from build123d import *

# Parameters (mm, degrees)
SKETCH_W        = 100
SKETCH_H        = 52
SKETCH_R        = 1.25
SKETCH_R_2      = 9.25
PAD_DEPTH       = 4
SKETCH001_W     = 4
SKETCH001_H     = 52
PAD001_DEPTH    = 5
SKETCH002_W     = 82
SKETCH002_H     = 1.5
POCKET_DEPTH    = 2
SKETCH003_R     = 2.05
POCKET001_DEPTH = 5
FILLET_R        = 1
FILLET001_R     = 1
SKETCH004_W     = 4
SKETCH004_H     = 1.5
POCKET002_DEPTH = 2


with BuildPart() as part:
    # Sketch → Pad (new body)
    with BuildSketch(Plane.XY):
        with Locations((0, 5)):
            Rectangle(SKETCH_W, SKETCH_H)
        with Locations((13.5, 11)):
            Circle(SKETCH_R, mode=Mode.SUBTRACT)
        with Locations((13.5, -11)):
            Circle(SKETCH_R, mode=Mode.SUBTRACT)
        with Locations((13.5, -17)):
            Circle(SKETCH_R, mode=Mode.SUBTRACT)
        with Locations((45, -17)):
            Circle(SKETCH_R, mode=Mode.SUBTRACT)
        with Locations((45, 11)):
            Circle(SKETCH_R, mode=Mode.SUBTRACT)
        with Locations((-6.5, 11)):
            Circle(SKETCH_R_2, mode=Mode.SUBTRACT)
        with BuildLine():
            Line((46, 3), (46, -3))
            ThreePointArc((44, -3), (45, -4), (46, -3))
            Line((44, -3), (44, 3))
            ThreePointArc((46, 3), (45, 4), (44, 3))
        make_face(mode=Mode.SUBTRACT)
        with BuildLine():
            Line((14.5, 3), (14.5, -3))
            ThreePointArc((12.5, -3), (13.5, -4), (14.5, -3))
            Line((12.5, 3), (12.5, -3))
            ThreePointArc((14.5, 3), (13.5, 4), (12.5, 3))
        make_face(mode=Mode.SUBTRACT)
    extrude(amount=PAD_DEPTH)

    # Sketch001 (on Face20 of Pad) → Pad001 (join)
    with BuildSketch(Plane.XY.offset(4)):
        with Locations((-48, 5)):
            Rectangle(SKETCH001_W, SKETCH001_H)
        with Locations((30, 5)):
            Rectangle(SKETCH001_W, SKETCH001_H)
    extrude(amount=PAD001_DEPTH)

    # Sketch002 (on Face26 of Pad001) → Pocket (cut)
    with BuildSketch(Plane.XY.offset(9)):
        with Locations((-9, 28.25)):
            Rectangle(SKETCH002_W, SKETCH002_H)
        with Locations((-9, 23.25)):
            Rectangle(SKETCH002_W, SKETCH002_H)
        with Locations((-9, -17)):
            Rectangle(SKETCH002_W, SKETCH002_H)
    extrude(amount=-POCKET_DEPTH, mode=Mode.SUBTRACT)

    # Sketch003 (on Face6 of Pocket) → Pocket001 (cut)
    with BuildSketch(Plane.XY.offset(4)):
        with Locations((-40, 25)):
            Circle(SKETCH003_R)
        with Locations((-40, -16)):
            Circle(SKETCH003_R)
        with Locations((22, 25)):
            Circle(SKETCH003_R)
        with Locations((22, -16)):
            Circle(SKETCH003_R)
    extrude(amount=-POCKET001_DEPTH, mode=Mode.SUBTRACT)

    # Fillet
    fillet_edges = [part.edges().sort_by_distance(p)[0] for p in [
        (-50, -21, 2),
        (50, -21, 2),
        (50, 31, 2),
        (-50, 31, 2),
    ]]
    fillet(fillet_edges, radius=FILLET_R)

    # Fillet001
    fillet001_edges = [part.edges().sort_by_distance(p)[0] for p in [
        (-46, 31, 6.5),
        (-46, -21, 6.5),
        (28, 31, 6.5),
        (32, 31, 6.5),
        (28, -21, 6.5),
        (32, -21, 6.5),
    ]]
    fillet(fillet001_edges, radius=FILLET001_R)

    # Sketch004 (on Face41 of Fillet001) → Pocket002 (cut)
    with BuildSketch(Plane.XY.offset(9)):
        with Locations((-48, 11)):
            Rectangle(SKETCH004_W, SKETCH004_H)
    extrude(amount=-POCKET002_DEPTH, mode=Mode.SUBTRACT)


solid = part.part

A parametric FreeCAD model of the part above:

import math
import FreeCAD as App
import Part
import Sketcher

V = App.Vector


def edges_at(feature, points):
    """Names of the edges that pass closest to the given points."""
    edges = feature.Shape.Edges
    near = lambda p: min(range(len(edges)), key=lambda i: edges[i].distToShape(Part.Vertex(*p))[0])
    return sorted({f"Edge{near(p) + 1}" for p in points})

doc = App.newDocument("Part")
params = doc.addObject("Spreadsheet::Sheet", "Params")
for row, (alias, value) in enumerate([
    ("sketch1_radius", "1 mm"),
    ("sketch1_diameter", "2.5 mm"),
    ("sketch1_diameter2", "18.5 mm"),
    ("sketch1_width", "100 mm"),
    ("sketch1_height", "52 mm"),
    ("pad1_length", "4 mm"),
    ("sketch2_width", "4 mm"),
    ("sketch2_height", "52 mm"),
    ("pad2_length", "5 mm"),
    ("sketch3_width", "82 mm"),
    ("sketch3_height", "1.5 mm"),
    ("pocket1_length", "2 mm"),
    ("sketch4_diameter", "4.1 mm"),
    ("pocket2_length", "5 mm"),
    ("fillet_radius", "1 mm"),
    ("fillet2_radius", "1 mm"),
    ("sketch5_width", "4 mm"),
    ("sketch5_height", "1.5 mm"),
    ("pocket3_length", "2 mm"),
], start=1):
    params.set(f"A{row}", alias)
    params.set(f"B{row}", "=" + value)
    params.setAlias(f"B{row}", alias)

body = doc.addObject("PartDesign::Body", "Body")

# Sketch on XY plane
sketch1 = body.newObject("Sketcher::SketchObject", "Sketch")
sketch1.AttachmentSupport = (doc.getObject("XY_Plane"), [""])
sketch1.MapMode = "FlatFace"
sketch1.addGeometry(Part.LineSegment(V(-50, 31, 0), V(-50, -21, 0)), False)
sketch1.addGeometry(Part.LineSegment(V(-50, -21, 0), V(50, -21, 0)), False)
sketch1.addGeometry(Part.LineSegment(V(50, -21, 0), V(50, 31, 0)), False)
sketch1.addGeometry(Part.LineSegment(V(50, 31, 0), V(-50, 31, 0)), False)
sketch1.addGeometry(Part.Circle(V(13.5, -17, 0), V(0, 0, 1), 1.2), False)
sketch1.addGeometry(Part.Circle(V(13.5, -11, 0), V(0, 0, 1), 1.2), False)
sketch1.addGeometry(Part.ArcOfCircle(Part.Circle(V(13.5, 3, 0), V(0, 0, 1), 1), math.radians(0), math.radians(180)), False)
sketch1.addGeometry(Part.LineSegment(V(14.5, 3, 0), V(14.5, -3, 0)), False)
sketch1.addGeometry(Part.ArcOfCircle(Part.Circle(V(13.5, -3, 0), V(0, 0, 1), 1), math.radians(180), math.radians(360)), False)
sketch1.addGeometry(Part.LineSegment(V(12.5, -3, 0), V(12.5, 3, 0)), False)
sketch1.addGeometry(Part.Circle(V(45, -17, 0), V(0, 0, 1), 1.2), False)
sketch1.addGeometry(Part.ArcOfCircle(Part.Circle(V(45, 3, 0), V(0, 0, 1), 1), math.radians(0), math.radians(180)), False)
sketch1.addGeometry(Part.LineSegment(V(46, 3, 0), V(46, -3, 0)), False)
sketch1.addGeometry(Part.ArcOfCircle(Part.Circle(V(45, -3, 0), V(0, 0, 1), 1), math.radians(180), math.radians(360)), False)
sketch1.addGeometry(Part.LineSegment(V(44, -3, 0), V(44, 3, 0)), False)
sketch1.addGeometry(Part.Circle(V(-6.5, 11, 0), V(0, 0, 1), 9.2), False)
sketch1.addGeometry(Part.Circle(V(13.5, 11, 0), V(0, 0, 1), 1.2), False)
sketch1.addGeometry(Part.Circle(V(45, 11, 0), V(0, 0, 1), 1.2), False)
sketch1.addConstraint(Sketcher.Constraint("Coincident", 0, 2, 1, 1))
sketch1.addConstraint(Sketcher.Constraint("Coincident", 1, 2, 2, 1))
sketch1.addConstraint(Sketcher.Constraint("Coincident", 2, 2, 3, 1))
sketch1.addConstraint(Sketcher.Constraint("Coincident", 3, 2, 0, 1))
sketch1.addConstraint(Sketcher.Constraint("Tangent", 6, 1, 7, 1))
sketch1.addConstraint(Sketcher.Constraint("Tangent", 7, 2, 8, 2))
sketch1.addConstraint(Sketcher.Constraint("Tangent", 8, 1, 9, 1))
sketch1.addConstraint(Sketcher.Constraint("Tangent", 9, 2, 6, 2))
sketch1.addConstraint(Sketcher.Constraint("Tangent", 11, 1, 12, 1))
sketch1.addConstraint(Sketcher.Constraint("Tangent", 12, 2, 13, 2))
sketch1.addConstraint(Sketcher.Constraint("Tangent", 13, 1, 14, 1))
sketch1.addConstraint(Sketcher.Constraint("Tangent", 14, 2, 11, 2))
sketch1.addConstraint(Sketcher.Constraint("Vertical", 0))
sketch1.addConstraint(Sketcher.Constraint("Horizontal", 1))
sketch1.addConstraint(Sketcher.Constraint("Vertical", 2))
sketch1.addConstraint(Sketcher.Constraint("Horizontal", 3))
sketch1.addConstraint(Sketcher.Constraint("Vertical", 7))
sketch1.addConstraint(Sketcher.Constraint("Vertical", 9))
sketch1.addConstraint(Sketcher.Constraint("Vertical", 12))
sketch1.addConstraint(Sketcher.Constraint("Vertical", 14))
sketch1.addConstraint(Sketcher.Constraint("Equal", 4, 5))
sketch1.addConstraint(Sketcher.Constraint("Equal", 5, 10))
sketch1.addConstraint(Sketcher.Constraint("Equal", 8, 11))
sketch1.addConstraint(Sketcher.Constraint("Equal", 10, 16))
sketch1.addConstraint(Sketcher.Constraint("Equal", 16, 17))
sketch1.addConstraint(Sketcher.Constraint("Symmetric", 5, 3, 16, 3, -1))
sketch1.addConstraint(Sketcher.Constraint("Horizontal", 4, 3, 10, 3))
sketch1.addConstraint(Sketcher.Constraint("Horizontal", 6, 3, 11, 3))
sketch1.addConstraint(Sketcher.Constraint("Horizontal", 8, 3, 13, 3))
sketch1.addConstraint(Sketcher.Constraint("Horizontal", 15, 3, 16, 3))
sketch1.addConstraint(Sketcher.Constraint("Horizontal", 16, 3, 17, 3))
sketch1.addConstraint(Sketcher.Constraint("Vertical", 4, 3, 5, 3))
sketch1.addConstraint(Sketcher.Constraint("Vertical", 5, 3, 6, 3))
sketch1.addConstraint(Sketcher.Constraint("Vertical", 10, 3, 11, 3))
sketch1.addConstraint(Sketcher.Constraint("Vertical", 13, 3, 17, 3))
sketch1.addConstraint(Sketcher.Constraint("Radius", 6, 1.0))
sketch1.addConstraint(Sketcher.Constraint("Diameter", 4, 2.5))
sketch1.addConstraint(Sketcher.Constraint("Diameter", 15, 18.5))
sketch1.addConstraint(Sketcher.Constraint("DistanceX", 1, 1, 1, 2, 100.0))
sketch1.addConstraint(Sketcher.Constraint("DistanceY", 0, 2, 0, 1, 52.0))
sketch1.addConstraint(Sketcher.Constraint("DistanceY", 7, 2, 7, 1, 6.0))
sketch1.addConstraint(Sketcher.Constraint("DistanceY", 4, 3, -1, 1, 17.0))
sketch1.addConstraint(Sketcher.Constraint("DistanceY", 5, 3, -1, 1, 11.0))
sketch1.addConstraint(Sketcher.Constraint("DistanceY", -1, 1, 6, 3, 3.0))
sketch1.addConstraint(Sketcher.Constraint("DistanceX", -1, 1, 10, 3, 45.0))
sketch1.addConstraint(Sketcher.Constraint("DistanceX", 0, 2, -1, 1, 50.0))
sketch1.addConstraint(Sketcher.Constraint("DistanceY", 0, 2, -1, 1, 21.0))
sketch1.addConstraint(Sketcher.Constraint("DistanceX", 15, 3, 6, 3, 20.0))
sketch1.addConstraint(Sketcher.Constraint("DistanceX", -1, 1, 4, 3, 13.5))
sketch1.setExpression("Constraints[35]", "Params.sketch1_radius")
sketch1.setExpression("Constraints[36]", "Params.sketch1_diameter")
sketch1.setExpression("Constraints[37]", "Params.sketch1_diameter2")
sketch1.setExpression("Constraints[38]", "Params.sketch1_width")
sketch1.setExpression("Constraints[39]", "Params.sketch1_height")
pad1 = body.newObject("PartDesign::Pad", "Pad")
pad1.Profile = sketch1
pad1.setExpression("Length", "Params.pad1_length")

# Sketch on XY plane
sketch2 = body.newObject("Sketcher::SketchObject", "Sketch001")
sketch2.AttachmentSupport = (doc.getObject("XY_Plane"), [""])
sketch2.MapMode = "FlatFace"
sketch2.AttachmentOffset = App.Placement(V(0, 0, 4), App.Rotation())
sketch2.addGeometry(Part.LineSegment(V(-50, 31, 0), V(-50, -21, 0)), False)
sketch2.addGeometry(Part.LineSegment(V(-50, -21, 0), V(-46, -21, 0)), False)
sketch2.addGeometry(Part.LineSegment(V(-46, -21, 0), V(-46, 31, 0)), False)
sketch2.addGeometry(Part.LineSegment(V(-46, 31, 0), V(-50, 31, 0)), False)
sketch2.addGeometry(Part.LineSegment(V(28, 31, 0), V(28, -21, 0)), False)
sketch2.addGeometry(Part.LineSegment(V(28, -21, 0), V(32, -21, 0)), False)
sketch2.addGeometry(Part.LineSegment(V(32, -21, 0), V(32, 31, 0)), False)
sketch2.addGeometry(Part.LineSegment(V(32, 31, 0), V(28, 31, 0)), False)
sketch2.addConstraint(Sketcher.Constraint("Coincident", 0, 2, 1, 1))
sketch2.addConstraint(Sketcher.Constraint("Coincident", 1, 2, 2, 1))
sketch2.addConstraint(Sketcher.Constraint("Coincident", 2, 2, 3, 1))
sketch2.addConstraint(Sketcher.Constraint("Coincident", 3, 2, 0, 1))
sketch2.addConstraint(Sketcher.Constraint("Coincident", 4, 2, 5, 1))
sketch2.addConstraint(Sketcher.Constraint("Coincident", 5, 2, 6, 1))
sketch2.addConstraint(Sketcher.Constraint("Coincident", 6, 2, 7, 1))
sketch2.addConstraint(Sketcher.Constraint("Coincident", 7, 2, 4, 1))
sketch2.addConstraint(Sketcher.Constraint("Vertical", 0))
sketch2.addConstraint(Sketcher.Constraint("Horizontal", 1))
sketch2.addConstraint(Sketcher.Constraint("Vertical", 2))
sketch2.addConstraint(Sketcher.Constraint("Horizontal", 3))
sketch2.addConstraint(Sketcher.Constraint("Vertical", 4))
sketch2.addConstraint(Sketcher.Constraint("Horizontal", 5))
sketch2.addConstraint(Sketcher.Constraint("Vertical", 6))
sketch2.addConstraint(Sketcher.Constraint("Horizontal", 7))
sketch2.addConstraint(Sketcher.Constraint("Horizontal", 1, 2, 4, 2))
sketch2.addConstraint(Sketcher.Constraint("Horizontal", 3, 2, 6, 2))
sketch2.addConstraint(Sketcher.Constraint("Equal", 3, 5))
sketch2.addConstraint(Sketcher.Constraint("DistanceX", 1, 1, 1, 2, 4.0))
sketch2.addConstraint(Sketcher.Constraint("DistanceY", 0, 2, 0, 1, 52.0))
sketch2.addConstraint(Sketcher.Constraint("DistanceX", 0, 2, -1, 1, 50.0))
sketch2.addConstraint(Sketcher.Constraint("DistanceY", 0, 2, -1, 1, 21.0))
sketch2.addConstraint(Sketcher.Constraint("DistanceX", -1, 1, 4, 2, 28.0))
sketch2.setExpression("Constraints[19]", "Params.sketch2_width")
sketch2.setExpression("Constraints[20]", "Params.sketch2_height")
pad2 = body.newObject("PartDesign::Pad", "Pad001")
pad2.Profile = sketch2
pad2.setExpression("Length", "Params.pad2_length")

# Sketch on XY plane
sketch3 = body.newObject("Sketcher::SketchObject", "Sketch002")
sketch3.AttachmentSupport = (doc.getObject("XY_Plane"), [""])
sketch3.MapMode = "FlatFace"
sketch3.AttachmentOffset = App.Placement(V(0, 0, 9), App.Rotation())
sketch3.addGeometry(Part.LineSegment(V(-50, 29, 0), V(-50, 27.5, 0)), False)
sketch3.addGeometry(Part.LineSegment(V(-50, 27.5, 0), V(32, 27.5, 0)), False)
sketch3.addGeometry(Part.LineSegment(V(32, 27.5, 0), V(32, 29, 0)), False)
sketch3.addGeometry(Part.LineSegment(V(32, 29, 0), V(-50, 29, 0)), False)
sketch3.addGeometry(Part.LineSegment(V(-50, 24, 0), V(-50, 22.5, 0)), False)
sketch3.addGeometry(Part.LineSegment(V(-50, 22.5, 0), V(32, 22.5, 0)), False)
sketch3.addGeometry(Part.LineSegment(V(32, 22.5, 0), V(32, 24, 0)), False)
sketch3.addGeometry(Part.LineSegment(V(32, 24, 0), V(-50, 24, 0)), False)
sketch3.addGeometry(Part.LineSegment(V(-50, -16.2, 0), V(-50, -17.8, 0)), False)
sketch3.addGeometry(Part.LineSegment(V(-50, -17.8, 0), V(32, -17.8, 0)), False)
sketch3.addGeometry(Part.LineSegment(V(32, -17.8, 0), V(32, -16.2, 0)), False)
sketch3.addGeometry(Part.LineSegment(V(32, -16.2, 0), V(-50, -16.2, 0)), False)
sketch3.addConstraint(Sketcher.Constraint("Coincident", 0, 2, 1, 1))
sketch3.addConstraint(Sketcher.Constraint("Coincident", 1, 2, 2, 1))
sketch3.addConstraint(Sketcher.Constraint("Coincident", 2, 2, 3, 1))
sketch3.addConstraint(Sketcher.Constraint("Coincident", 3, 2, 0, 1))
sketch3.addConstraint(Sketcher.Constraint("Coincident", 4, 2, 5, 1))
sketch3.addConstraint(Sketcher.Constraint("Coincident", 5, 2, 6, 1))
sketch3.addConstraint(Sketcher.Constraint("Coincident", 6, 2, 7, 1))
sketch3.addConstraint(Sketcher.Constraint("Coincident", 7, 2, 4, 1))
sketch3.addConstraint(Sketcher.Constraint("Coincident", 8, 2, 9, 1))
sketch3.addConstraint(Sketcher.Constraint("Coincident", 9, 2, 10, 1))
sketch3.addConstraint(Sketcher.Constraint("Coincident", 10, 2, 11, 1))
sketch3.addConstraint(Sketcher.Constraint("Coincident", 11, 2, 8, 1))
sketch3.addConstraint(Sketcher.Constraint("Vertical", 0))
sketch3.addConstraint(Sketcher.Constraint("Horizontal", 1))
sketch3.addConstraint(Sketcher.Constraint("Vertical", 2))
sketch3.addConstraint(Sketcher.Constraint("Horizontal", 3))
sketch3.addConstraint(Sketcher.Constraint("Vertical", 4))
sketch3.addConstraint(Sketcher.Constraint("Horizontal", 5))
sketch3.addConstraint(Sketcher.Constraint("Vertical", 6))
sketch3.addConstraint(Sketcher.Constraint("Horizontal", 7))
sketch3.addConstraint(Sketcher.Constraint("Vertical", 8))
sketch3.addConstraint(Sketcher.Constraint("Horizontal", 9))
sketch3.addConstraint(Sketcher.Constraint("Vertical", 10))
sketch3.addConstraint(Sketcher.Constraint("Horizontal", 11))
sketch3.addConstraint(Sketcher.Constraint("Vertical", 3, 2, 4, 2))
sketch3.addConstraint(Sketcher.Constraint("Vertical", 2, 2, 5, 2))
sketch3.addConstraint(Sketcher.Constraint("Vertical", 7, 2, 8, 2))
sketch3.addConstraint(Sketcher.Constraint("Vertical", 6, 2, 9, 2))
sketch3.addConstraint(Sketcher.Constraint("Equal", 2, 4))
sketch3.addConstraint(Sketcher.Constraint("Equal", 6, 8))
sketch3.addConstraint(Sketcher.Constraint("DistanceX", 1, 1, 1, 2, 82.0))
sketch3.addConstraint(Sketcher.Constraint("DistanceY", 0, 2, 0, 1, 1.5))
sketch3.addConstraint(Sketcher.Constraint("DistanceX", 0, 2, -1, 1, 50.0))
sketch3.addConstraint(Sketcher.Constraint("DistanceY", -1, 1, 2, 2, 29.0))
sketch3.addConstraint(Sketcher.Constraint("DistanceY", -1, 1, 6, 2, 24.0))
sketch3.addConstraint(Sketcher.Constraint("DistanceY", 8, 2, -1, 1, 17.75))
sketch3.setExpression("Constraints[30]", "Params.sketch3_width")
sketch3.setExpression("Constraints[31]", "Params.sketch3_height")
pocket1 = body.newObject("PartDesign::Pocket", "Pocket")
pocket1.Profile = sketch3
pocket1.setExpression("Length", "Params.pocket1_length")

# Sketch on XY plane
sketch4 = body.newObject("Sketcher::SketchObject", "Sketch003")
sketch4.AttachmentSupport = (doc.getObject("XY_Plane"), [""])
sketch4.MapMode = "FlatFace"
sketch4.AttachmentOffset = App.Placement(V(0, 0, 4), App.Rotation())
sketch4.addGeometry(Part.Circle(V(-40, 25, 0), V(0, 0, 1), 2), False)
sketch4.addGeometry(Part.Circle(V(-40, -16, 0), V(0, 0, 1), 2), False)
sketch4.addGeometry(Part.Circle(V(22, 25, 0), V(0, 0, 1), 2), False)
sketch4.addGeometry(Part.Circle(V(22, -16, 0), V(0, 0, 1), 2), False)
sketch4.addConstraint(Sketcher.Constraint("Equal", 0, 1))
sketch4.addConstraint(Sketcher.Constraint("Equal", 1, 2))
sketch4.addConstraint(Sketcher.Constraint("Equal", 2, 3))
sketch4.addConstraint(Sketcher.Constraint("Horizontal", 0, 3, 2, 3))
sketch4.addConstraint(Sketcher.Constraint("Horizontal", 1, 3, 3, 3))
sketch4.addConstraint(Sketcher.Constraint("Vertical", 0, 3, 1, 3))
sketch4.addConstraint(Sketcher.Constraint("Vertical", 2, 3, 3, 3))
sketch4.addConstraint(Sketcher.Constraint("Diameter", 0, 4.1))
sketch4.addConstraint(Sketcher.Constraint("DistanceX", 0, 3, -1, 1, 40.0))
sketch4.addConstraint(Sketcher.Constraint("DistanceY", -1, 1, 0, 3, 25.0))
sketch4.addConstraint(Sketcher.Constraint("DistanceY", 1, 3, -1, 1, 16.0))
sketch4.addConstraint(Sketcher.Constraint("DistanceX", -1, 1, 2, 3, 22.0))
sketch4.setExpression("Constraints[7]", "Params.sketch4_diameter")
pocket2 = body.newObject("PartDesign::Pocket", "Pocket001")
pocket2.Profile = sketch4
pocket2.setExpression("Length", "Params.pocket2_length")
doc.recompute()

fillet = body.newObject("PartDesign::Fillet", "Fillet")
fillet.Base = (pocket2, edges_at(pocket2, [
    (-50, -21, 4.5),
    (50, -21, 2),
    (50, 31, 2),
    (-50, 31, 4.5),
]))
fillet.setExpression("Radius", "Params.fillet_radius")
doc.recompute()

fillet2 = body.newObject("PartDesign::Fillet", "Fillet001")
fillet2.Base = (fillet, edges_at(fillet, [
    (-46, 31, 6.5),
    (-46, -21, 6.5),
    (28, 31, 6.5),
    (32, 31, 6.5),
    (28, -21, 6.5),
    (32, -21, 6.5),
]))
fillet2.setExpression("Radius", "Params.fillet2_radius")

# Sketch on XY plane
sketch5 = body.newObject("Sketcher::SketchObject", "Sketch004")
sketch5.AttachmentSupport = (doc.getObject("XY_Plane"), [""])
sketch5.MapMode = "FlatFace"
sketch5.AttachmentOffset = App.Placement(V(0, 0, 9), App.Rotation())
sketch5.addGeometry(Part.LineSegment(V(-50, 11.8, 0), V(-50, 10.2, 0)), False)
sketch5.addGeometry(Part.LineSegment(V(-50, 10.2, 0), V(-46, 10.2, 0)), False)
sketch5.addGeometry(Part.LineSegment(V(-46, 10.2, 0), V(-46, 11.8, 0)), False)
sketch5.addGeometry(Part.LineSegment(V(-46, 11.8, 0), V(-50, 11.8, 0)), False)
sketch5.addConstraint(Sketcher.Constraint("Coincident", 0, 2, 1, 1))
sketch5.addConstraint(Sketcher.Constraint("Coincident", 1, 2, 2, 1))
sketch5.addConstraint(Sketcher.Constraint("Coincident", 2, 2, 3, 1))
sketch5.addConstraint(Sketcher.Constraint("Coincident", 3, 2, 0, 1))
sketch5.addConstraint(Sketcher.Constraint("Vertical", 0))
sketch5.addConstraint(Sketcher.Constraint("Horizontal", 1))
sketch5.addConstraint(Sketcher.Constraint("Vertical", 2))
sketch5.addConstraint(Sketcher.Constraint("Horizontal", 3))
sketch5.addConstraint(Sketcher.Constraint("DistanceX", 1, 1, 1, 2, 4.0))
sketch5.addConstraint(Sketcher.Constraint("DistanceY", 0, 2, 0, 1, 1.5))
sketch5.addConstraint(Sketcher.Constraint("DistanceX", 0, 2, -1, 1, 50.0))
sketch5.addConstraint(Sketcher.Constraint("DistanceY", -1, 1, 0, 2, 10.25))
sketch5.setExpression("Constraints[8]", "Params.sketch5_width")
sketch5.setExpression("Constraints[9]", "Params.sketch5_height")
pocket3 = body.newObject("PartDesign::Pocket", "Pocket002")
pocket3.Profile = sketch5
pocket3.setExpression("Length", "Params.pocket3_length")

doc.recompute()
